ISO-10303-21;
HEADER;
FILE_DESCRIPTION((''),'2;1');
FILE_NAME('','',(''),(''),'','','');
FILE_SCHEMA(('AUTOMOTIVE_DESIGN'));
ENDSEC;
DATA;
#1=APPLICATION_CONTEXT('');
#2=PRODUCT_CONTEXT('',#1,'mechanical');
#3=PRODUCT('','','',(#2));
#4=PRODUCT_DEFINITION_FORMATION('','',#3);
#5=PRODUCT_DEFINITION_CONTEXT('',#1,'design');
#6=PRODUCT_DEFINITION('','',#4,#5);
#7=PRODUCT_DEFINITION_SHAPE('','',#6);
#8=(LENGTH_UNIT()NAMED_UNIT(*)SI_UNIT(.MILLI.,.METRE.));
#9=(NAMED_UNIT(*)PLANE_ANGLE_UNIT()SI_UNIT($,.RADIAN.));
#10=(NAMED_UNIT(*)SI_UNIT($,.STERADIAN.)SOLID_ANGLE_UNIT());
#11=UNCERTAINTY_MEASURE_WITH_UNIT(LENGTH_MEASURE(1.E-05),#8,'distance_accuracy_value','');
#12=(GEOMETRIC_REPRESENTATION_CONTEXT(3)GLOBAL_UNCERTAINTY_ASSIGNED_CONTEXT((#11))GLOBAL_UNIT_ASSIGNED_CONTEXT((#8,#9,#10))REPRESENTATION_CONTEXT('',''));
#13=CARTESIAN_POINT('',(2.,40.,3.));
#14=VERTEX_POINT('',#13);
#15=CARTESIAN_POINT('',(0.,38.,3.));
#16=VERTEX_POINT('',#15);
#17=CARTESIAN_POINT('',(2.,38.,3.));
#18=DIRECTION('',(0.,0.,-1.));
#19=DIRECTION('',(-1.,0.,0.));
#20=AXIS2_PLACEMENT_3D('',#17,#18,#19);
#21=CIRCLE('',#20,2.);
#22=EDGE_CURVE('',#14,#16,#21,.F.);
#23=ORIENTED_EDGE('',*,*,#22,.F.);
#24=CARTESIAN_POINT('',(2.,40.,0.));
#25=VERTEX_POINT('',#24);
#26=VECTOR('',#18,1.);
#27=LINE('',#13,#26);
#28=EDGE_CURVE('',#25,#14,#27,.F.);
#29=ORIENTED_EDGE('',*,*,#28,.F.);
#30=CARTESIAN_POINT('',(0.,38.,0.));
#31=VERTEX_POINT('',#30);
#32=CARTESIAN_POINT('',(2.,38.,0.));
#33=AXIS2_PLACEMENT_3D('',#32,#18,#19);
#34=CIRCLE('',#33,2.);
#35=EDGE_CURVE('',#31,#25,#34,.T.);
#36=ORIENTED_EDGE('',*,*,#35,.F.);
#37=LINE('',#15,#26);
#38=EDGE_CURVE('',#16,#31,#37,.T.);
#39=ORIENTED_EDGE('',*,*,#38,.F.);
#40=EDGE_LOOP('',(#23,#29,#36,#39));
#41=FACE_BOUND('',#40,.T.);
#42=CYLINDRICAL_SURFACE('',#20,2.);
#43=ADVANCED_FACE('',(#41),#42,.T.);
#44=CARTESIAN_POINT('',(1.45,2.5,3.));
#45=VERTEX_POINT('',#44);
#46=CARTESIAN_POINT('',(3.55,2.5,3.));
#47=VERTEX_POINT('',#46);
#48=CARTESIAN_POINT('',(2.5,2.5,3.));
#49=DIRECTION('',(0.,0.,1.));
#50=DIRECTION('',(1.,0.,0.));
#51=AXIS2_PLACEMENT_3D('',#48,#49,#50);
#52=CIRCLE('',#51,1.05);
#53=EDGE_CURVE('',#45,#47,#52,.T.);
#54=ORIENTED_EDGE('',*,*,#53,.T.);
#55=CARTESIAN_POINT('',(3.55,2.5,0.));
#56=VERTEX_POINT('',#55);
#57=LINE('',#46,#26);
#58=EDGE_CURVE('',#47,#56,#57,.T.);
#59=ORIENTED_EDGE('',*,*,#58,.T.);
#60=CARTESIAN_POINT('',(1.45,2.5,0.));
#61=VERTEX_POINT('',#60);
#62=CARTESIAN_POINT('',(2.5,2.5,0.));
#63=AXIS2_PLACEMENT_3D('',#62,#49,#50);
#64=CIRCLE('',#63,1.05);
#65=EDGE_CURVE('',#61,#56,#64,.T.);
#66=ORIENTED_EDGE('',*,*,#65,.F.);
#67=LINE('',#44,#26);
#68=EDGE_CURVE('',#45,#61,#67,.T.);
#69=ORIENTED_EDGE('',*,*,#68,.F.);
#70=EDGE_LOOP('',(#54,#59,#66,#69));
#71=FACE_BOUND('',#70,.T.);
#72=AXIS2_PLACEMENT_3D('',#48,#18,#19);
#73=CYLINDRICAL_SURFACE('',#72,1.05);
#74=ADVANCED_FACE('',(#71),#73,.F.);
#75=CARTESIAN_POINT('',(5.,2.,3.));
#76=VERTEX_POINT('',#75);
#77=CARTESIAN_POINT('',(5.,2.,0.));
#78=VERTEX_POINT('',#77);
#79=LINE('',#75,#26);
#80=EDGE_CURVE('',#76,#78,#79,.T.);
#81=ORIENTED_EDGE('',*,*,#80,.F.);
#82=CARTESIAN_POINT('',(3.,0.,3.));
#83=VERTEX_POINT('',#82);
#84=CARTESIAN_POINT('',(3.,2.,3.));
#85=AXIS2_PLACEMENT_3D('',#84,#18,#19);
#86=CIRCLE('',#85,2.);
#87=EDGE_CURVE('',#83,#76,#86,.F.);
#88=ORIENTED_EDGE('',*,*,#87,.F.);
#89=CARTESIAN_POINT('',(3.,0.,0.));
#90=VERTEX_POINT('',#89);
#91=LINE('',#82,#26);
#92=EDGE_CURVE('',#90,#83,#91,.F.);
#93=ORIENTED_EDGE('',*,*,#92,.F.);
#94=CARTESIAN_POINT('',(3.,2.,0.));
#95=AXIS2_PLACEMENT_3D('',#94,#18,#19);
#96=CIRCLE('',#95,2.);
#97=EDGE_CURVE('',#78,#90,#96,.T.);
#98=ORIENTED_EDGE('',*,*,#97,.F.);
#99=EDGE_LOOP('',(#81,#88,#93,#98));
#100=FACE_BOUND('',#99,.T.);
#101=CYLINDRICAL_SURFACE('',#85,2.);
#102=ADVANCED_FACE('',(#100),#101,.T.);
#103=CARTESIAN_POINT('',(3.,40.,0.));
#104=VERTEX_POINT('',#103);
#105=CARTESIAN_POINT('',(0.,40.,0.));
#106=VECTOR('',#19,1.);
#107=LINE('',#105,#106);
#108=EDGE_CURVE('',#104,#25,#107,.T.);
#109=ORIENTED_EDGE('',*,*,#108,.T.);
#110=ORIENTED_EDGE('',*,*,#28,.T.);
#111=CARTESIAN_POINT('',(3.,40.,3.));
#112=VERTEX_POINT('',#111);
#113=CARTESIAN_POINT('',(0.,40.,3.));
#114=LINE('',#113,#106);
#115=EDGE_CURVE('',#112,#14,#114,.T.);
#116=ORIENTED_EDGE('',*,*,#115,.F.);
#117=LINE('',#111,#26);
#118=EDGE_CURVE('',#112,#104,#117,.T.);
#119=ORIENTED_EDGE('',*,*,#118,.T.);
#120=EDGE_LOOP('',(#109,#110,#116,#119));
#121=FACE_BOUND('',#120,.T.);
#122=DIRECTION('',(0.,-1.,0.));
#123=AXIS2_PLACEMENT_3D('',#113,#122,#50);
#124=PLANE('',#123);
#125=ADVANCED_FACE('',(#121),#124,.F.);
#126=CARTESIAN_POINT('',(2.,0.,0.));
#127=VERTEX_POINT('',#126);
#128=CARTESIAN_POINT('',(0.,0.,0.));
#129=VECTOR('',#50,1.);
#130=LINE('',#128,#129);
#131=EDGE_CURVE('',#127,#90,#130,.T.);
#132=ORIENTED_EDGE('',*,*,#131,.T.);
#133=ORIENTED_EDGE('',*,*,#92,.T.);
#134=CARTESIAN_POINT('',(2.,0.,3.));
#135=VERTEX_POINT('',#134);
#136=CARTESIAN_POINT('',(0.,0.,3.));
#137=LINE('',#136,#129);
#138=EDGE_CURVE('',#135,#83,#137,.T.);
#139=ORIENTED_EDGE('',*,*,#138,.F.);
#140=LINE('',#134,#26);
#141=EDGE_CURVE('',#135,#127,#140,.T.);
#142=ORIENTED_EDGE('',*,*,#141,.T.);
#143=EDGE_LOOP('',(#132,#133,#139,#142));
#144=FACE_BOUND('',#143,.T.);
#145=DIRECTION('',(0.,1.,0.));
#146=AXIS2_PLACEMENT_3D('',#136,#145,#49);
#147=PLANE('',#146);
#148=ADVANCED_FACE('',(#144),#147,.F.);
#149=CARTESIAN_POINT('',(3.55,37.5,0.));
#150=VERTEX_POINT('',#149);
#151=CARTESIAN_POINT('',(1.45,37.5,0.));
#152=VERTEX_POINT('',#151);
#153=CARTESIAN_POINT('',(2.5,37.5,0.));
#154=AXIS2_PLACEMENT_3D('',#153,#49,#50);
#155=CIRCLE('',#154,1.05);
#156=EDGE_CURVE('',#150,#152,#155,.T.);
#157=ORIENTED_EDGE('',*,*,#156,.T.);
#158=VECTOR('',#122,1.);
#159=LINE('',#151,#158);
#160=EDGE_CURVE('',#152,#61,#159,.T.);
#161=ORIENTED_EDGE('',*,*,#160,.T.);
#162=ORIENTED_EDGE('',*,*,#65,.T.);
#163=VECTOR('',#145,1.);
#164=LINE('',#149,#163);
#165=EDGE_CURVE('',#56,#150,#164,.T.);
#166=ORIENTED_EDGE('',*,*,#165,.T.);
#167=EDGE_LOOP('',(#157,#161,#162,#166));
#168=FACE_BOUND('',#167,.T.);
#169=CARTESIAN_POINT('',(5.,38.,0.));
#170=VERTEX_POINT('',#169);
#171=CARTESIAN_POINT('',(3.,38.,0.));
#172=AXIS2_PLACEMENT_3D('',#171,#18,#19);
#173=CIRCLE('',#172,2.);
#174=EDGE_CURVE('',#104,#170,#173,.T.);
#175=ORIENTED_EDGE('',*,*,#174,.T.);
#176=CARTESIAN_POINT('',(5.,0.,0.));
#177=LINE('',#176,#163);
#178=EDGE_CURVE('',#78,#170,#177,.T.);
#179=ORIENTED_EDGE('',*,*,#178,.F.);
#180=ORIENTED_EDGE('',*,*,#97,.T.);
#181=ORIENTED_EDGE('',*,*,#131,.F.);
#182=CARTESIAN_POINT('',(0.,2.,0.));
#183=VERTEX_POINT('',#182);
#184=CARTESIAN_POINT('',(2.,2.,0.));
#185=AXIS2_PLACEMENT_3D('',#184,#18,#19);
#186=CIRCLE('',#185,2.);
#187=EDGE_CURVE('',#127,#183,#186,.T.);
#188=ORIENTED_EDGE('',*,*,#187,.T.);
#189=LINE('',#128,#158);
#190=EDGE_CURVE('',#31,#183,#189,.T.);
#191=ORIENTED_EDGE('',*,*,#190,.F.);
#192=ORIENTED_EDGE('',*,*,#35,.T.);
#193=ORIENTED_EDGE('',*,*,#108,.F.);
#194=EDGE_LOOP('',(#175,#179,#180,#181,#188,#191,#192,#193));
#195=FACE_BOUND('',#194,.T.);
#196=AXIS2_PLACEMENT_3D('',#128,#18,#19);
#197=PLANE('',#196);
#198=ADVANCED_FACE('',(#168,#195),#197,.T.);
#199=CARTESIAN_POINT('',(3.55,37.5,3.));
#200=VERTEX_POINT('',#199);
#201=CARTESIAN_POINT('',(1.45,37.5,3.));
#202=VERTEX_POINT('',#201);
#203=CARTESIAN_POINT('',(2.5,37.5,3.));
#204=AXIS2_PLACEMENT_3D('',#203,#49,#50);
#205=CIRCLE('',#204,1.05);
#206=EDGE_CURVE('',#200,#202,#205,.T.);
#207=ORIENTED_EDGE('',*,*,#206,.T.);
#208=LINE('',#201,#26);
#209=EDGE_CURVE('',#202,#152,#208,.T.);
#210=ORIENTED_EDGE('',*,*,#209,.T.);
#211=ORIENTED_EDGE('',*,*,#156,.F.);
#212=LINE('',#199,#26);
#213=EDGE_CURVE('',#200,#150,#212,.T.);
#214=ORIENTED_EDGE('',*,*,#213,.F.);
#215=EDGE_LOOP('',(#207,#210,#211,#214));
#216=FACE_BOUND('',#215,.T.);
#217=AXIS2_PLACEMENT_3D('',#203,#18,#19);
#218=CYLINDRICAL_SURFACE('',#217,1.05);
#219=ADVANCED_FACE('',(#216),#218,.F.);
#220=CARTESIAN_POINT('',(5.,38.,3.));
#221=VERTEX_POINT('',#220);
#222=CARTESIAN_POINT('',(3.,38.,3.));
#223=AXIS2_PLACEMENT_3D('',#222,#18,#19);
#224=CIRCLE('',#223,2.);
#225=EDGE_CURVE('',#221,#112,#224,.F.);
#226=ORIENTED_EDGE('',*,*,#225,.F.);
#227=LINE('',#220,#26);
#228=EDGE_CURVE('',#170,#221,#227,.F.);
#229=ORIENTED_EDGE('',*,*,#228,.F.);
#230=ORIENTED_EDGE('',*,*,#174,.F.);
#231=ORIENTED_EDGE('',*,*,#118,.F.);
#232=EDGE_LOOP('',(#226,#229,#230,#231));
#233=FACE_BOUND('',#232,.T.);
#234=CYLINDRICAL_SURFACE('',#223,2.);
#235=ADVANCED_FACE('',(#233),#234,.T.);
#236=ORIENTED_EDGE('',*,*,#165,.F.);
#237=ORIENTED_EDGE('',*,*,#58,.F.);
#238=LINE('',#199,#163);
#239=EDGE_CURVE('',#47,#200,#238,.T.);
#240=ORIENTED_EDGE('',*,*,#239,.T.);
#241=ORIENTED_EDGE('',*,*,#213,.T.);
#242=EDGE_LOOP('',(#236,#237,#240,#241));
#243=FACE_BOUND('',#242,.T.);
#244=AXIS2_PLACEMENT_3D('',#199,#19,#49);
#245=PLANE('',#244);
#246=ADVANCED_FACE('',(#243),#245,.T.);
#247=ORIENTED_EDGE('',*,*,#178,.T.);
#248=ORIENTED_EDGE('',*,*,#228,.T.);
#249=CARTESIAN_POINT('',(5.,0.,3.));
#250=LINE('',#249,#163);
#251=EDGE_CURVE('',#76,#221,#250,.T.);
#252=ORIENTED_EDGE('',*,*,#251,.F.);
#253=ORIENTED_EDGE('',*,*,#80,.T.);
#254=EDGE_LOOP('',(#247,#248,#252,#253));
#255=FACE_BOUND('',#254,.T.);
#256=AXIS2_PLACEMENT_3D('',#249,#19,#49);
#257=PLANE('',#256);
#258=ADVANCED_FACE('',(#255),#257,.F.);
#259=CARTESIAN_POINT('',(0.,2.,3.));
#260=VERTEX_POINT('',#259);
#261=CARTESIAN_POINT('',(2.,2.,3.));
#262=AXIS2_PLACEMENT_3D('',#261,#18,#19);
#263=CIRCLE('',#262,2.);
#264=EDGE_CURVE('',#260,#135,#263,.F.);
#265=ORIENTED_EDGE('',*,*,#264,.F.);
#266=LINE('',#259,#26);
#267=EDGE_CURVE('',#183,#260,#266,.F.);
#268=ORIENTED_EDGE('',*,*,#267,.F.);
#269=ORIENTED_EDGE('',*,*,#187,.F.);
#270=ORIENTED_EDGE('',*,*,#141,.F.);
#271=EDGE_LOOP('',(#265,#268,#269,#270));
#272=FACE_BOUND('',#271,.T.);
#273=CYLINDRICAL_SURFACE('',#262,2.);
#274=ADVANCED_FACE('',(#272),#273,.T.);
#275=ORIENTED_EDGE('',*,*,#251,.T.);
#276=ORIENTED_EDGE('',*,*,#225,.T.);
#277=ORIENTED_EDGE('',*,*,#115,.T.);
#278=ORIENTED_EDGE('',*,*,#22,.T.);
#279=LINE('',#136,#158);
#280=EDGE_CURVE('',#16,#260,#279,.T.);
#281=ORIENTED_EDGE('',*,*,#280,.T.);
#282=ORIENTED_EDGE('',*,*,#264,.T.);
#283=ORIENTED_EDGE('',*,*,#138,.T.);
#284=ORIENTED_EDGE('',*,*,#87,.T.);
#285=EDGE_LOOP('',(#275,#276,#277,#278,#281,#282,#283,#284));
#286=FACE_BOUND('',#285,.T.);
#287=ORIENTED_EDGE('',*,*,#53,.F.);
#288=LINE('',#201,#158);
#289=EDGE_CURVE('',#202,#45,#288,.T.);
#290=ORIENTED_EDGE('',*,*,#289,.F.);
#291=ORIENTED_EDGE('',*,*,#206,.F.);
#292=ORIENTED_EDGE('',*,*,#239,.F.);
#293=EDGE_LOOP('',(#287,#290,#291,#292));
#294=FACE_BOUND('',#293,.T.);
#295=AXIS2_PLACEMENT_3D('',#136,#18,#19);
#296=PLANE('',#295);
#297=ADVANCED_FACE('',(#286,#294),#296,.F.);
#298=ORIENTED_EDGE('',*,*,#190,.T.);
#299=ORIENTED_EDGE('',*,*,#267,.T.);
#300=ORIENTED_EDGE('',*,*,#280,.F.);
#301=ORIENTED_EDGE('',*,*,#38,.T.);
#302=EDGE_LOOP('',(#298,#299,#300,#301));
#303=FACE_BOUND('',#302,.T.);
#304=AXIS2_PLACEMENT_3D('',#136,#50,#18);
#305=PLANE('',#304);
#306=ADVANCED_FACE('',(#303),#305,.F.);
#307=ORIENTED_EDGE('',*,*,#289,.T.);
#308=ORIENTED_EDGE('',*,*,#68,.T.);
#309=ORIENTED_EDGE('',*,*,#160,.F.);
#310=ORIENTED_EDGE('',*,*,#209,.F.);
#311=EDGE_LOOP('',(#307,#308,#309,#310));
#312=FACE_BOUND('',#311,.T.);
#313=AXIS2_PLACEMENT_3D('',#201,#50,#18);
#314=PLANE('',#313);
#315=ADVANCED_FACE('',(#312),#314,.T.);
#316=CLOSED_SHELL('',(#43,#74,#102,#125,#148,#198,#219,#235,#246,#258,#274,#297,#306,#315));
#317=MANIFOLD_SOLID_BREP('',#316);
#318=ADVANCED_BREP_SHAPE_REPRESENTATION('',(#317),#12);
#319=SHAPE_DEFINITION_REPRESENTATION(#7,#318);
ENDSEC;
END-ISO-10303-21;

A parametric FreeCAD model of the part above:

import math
import FreeCAD as App
import Part
import Sketcher

V = App.Vector
Q = App.Units.Quantity


def edges_at(feature, points):
    """Names of the edges that pass closest to the given points."""
    edges = feature.Shape.Edges
    near = lambda p: min(range(len(edges)), key=lambda i: edges[i].distToShape(Part.Vertex(*p))[0])
    return sorted({f"Edge{near(p) + 1}" for p in points})


def add_polygon(sketch, points):
    """Adds a closed chain of lines whose ends are joined by coincident constraints."""
    first, n = sketch.GeometryCount, len(points)
    for a, b in zip(points, points[1:] + points[:1]):
        sketch.addGeometry(Part.LineSegment(App.Vector(*a, 0), App.Vector(*b, 0)), False)
    for i in range(n):
        sketch.addConstraint(Sketcher.Constraint("Coincident", first + i, 2, first + (i + 1) % n, 1))

doc = App.newDocument("Part")
body = doc.addObject("PartDesign::Body", "Body")

sketch1 = body.newObject("Sketcher::SketchObject", "Sketch")
sketch1.AttachmentSupport = (doc.getObject("XY_Plane"), [""])
sketch1.MapMode = "FlatFace"
add_polygon(sketch1, [(0, 40), (0, 0), (5, 0), (5, 40)])
sketch1.addGeometry(Part.ArcOfCircle(Part.Circle(V(2.5, 37.5, 0), V(0, 0, 1), 1.1), math.radians(0), math.radians(180)), False)
sketch1.addGeometry(Part.LineSegment(V(3.5, 37.5, 0), V(3.5, 2.5, 0)), False)
sketch1.addGeometry(Part.ArcOfCircle(Part.Circle(V(2.5, 2.5, 0), V(0, 0, 1), 1.1), math.radians(180), math.radians(360)), False)
sketch1.addGeometry(Part.LineSegment(V(1.4, 2.5, 0), V(1.4, 37.5, 0)), False)
sketch1.addConstraint([
    Sketcher.Constraint("Tangent", 4, 1, 5, 1),
    Sketcher.Constraint("Tangent", 5, 2, 6, 2),
    Sketcher.Constraint("Tangent", 6, 1, 7, 1),
    Sketcher.Constraint("Tangent", 7, 2, 4, 2),
    Sketcher.Constraint("Vertical", 0),
    Sketcher.Constraint("Horizontal", 1),
    Sketcher.Constraint("Vertical", 2),
    Sketcher.Constraint("Horizontal", 3),
    Sketcher.Constraint("Vertical", 5),
    Sketcher.Constraint("Vertical", 7),
    Sketcher.Constraint("Coincident", 0, 2, -1, 1),
    Sketcher.Constraint("DistanceX", 1, 1, 1, 2, Q("5 mm")),
    Sketcher.Constraint("DistanceY", 0, 2, 0, 1, Q("40 mm")),
    Sketcher.Constraint("DistanceY", 5, 2, 5, 1, Q("35 mm")),
    Sketcher.Constraint("Radius", 4, Q("1.05 mm")),
    Sketcher.Constraint("DistanceX", -1, 1, 4, 3, Q("2.5 mm")),
    Sketcher.Constraint("DistanceY", -1, 1, 4, 3, Q("37.5 mm")),
])
pad1 = body.newObject("PartDesign::Pad", "Pad")
pad1.Profile = sketch1
pad1.Length = 3
doc.recompute()

fillet = body.newObject("PartDesign::Fillet", "Fillet")
fillet.Base = (pad1, edges_at(pad1, [
    (0, 40, 1.5),
    (5, 40, 1.5),
    (5, 0, 1.5),
    (0, 0, 1.5),
]))
fillet.Radius = 2

doc.recompute()
